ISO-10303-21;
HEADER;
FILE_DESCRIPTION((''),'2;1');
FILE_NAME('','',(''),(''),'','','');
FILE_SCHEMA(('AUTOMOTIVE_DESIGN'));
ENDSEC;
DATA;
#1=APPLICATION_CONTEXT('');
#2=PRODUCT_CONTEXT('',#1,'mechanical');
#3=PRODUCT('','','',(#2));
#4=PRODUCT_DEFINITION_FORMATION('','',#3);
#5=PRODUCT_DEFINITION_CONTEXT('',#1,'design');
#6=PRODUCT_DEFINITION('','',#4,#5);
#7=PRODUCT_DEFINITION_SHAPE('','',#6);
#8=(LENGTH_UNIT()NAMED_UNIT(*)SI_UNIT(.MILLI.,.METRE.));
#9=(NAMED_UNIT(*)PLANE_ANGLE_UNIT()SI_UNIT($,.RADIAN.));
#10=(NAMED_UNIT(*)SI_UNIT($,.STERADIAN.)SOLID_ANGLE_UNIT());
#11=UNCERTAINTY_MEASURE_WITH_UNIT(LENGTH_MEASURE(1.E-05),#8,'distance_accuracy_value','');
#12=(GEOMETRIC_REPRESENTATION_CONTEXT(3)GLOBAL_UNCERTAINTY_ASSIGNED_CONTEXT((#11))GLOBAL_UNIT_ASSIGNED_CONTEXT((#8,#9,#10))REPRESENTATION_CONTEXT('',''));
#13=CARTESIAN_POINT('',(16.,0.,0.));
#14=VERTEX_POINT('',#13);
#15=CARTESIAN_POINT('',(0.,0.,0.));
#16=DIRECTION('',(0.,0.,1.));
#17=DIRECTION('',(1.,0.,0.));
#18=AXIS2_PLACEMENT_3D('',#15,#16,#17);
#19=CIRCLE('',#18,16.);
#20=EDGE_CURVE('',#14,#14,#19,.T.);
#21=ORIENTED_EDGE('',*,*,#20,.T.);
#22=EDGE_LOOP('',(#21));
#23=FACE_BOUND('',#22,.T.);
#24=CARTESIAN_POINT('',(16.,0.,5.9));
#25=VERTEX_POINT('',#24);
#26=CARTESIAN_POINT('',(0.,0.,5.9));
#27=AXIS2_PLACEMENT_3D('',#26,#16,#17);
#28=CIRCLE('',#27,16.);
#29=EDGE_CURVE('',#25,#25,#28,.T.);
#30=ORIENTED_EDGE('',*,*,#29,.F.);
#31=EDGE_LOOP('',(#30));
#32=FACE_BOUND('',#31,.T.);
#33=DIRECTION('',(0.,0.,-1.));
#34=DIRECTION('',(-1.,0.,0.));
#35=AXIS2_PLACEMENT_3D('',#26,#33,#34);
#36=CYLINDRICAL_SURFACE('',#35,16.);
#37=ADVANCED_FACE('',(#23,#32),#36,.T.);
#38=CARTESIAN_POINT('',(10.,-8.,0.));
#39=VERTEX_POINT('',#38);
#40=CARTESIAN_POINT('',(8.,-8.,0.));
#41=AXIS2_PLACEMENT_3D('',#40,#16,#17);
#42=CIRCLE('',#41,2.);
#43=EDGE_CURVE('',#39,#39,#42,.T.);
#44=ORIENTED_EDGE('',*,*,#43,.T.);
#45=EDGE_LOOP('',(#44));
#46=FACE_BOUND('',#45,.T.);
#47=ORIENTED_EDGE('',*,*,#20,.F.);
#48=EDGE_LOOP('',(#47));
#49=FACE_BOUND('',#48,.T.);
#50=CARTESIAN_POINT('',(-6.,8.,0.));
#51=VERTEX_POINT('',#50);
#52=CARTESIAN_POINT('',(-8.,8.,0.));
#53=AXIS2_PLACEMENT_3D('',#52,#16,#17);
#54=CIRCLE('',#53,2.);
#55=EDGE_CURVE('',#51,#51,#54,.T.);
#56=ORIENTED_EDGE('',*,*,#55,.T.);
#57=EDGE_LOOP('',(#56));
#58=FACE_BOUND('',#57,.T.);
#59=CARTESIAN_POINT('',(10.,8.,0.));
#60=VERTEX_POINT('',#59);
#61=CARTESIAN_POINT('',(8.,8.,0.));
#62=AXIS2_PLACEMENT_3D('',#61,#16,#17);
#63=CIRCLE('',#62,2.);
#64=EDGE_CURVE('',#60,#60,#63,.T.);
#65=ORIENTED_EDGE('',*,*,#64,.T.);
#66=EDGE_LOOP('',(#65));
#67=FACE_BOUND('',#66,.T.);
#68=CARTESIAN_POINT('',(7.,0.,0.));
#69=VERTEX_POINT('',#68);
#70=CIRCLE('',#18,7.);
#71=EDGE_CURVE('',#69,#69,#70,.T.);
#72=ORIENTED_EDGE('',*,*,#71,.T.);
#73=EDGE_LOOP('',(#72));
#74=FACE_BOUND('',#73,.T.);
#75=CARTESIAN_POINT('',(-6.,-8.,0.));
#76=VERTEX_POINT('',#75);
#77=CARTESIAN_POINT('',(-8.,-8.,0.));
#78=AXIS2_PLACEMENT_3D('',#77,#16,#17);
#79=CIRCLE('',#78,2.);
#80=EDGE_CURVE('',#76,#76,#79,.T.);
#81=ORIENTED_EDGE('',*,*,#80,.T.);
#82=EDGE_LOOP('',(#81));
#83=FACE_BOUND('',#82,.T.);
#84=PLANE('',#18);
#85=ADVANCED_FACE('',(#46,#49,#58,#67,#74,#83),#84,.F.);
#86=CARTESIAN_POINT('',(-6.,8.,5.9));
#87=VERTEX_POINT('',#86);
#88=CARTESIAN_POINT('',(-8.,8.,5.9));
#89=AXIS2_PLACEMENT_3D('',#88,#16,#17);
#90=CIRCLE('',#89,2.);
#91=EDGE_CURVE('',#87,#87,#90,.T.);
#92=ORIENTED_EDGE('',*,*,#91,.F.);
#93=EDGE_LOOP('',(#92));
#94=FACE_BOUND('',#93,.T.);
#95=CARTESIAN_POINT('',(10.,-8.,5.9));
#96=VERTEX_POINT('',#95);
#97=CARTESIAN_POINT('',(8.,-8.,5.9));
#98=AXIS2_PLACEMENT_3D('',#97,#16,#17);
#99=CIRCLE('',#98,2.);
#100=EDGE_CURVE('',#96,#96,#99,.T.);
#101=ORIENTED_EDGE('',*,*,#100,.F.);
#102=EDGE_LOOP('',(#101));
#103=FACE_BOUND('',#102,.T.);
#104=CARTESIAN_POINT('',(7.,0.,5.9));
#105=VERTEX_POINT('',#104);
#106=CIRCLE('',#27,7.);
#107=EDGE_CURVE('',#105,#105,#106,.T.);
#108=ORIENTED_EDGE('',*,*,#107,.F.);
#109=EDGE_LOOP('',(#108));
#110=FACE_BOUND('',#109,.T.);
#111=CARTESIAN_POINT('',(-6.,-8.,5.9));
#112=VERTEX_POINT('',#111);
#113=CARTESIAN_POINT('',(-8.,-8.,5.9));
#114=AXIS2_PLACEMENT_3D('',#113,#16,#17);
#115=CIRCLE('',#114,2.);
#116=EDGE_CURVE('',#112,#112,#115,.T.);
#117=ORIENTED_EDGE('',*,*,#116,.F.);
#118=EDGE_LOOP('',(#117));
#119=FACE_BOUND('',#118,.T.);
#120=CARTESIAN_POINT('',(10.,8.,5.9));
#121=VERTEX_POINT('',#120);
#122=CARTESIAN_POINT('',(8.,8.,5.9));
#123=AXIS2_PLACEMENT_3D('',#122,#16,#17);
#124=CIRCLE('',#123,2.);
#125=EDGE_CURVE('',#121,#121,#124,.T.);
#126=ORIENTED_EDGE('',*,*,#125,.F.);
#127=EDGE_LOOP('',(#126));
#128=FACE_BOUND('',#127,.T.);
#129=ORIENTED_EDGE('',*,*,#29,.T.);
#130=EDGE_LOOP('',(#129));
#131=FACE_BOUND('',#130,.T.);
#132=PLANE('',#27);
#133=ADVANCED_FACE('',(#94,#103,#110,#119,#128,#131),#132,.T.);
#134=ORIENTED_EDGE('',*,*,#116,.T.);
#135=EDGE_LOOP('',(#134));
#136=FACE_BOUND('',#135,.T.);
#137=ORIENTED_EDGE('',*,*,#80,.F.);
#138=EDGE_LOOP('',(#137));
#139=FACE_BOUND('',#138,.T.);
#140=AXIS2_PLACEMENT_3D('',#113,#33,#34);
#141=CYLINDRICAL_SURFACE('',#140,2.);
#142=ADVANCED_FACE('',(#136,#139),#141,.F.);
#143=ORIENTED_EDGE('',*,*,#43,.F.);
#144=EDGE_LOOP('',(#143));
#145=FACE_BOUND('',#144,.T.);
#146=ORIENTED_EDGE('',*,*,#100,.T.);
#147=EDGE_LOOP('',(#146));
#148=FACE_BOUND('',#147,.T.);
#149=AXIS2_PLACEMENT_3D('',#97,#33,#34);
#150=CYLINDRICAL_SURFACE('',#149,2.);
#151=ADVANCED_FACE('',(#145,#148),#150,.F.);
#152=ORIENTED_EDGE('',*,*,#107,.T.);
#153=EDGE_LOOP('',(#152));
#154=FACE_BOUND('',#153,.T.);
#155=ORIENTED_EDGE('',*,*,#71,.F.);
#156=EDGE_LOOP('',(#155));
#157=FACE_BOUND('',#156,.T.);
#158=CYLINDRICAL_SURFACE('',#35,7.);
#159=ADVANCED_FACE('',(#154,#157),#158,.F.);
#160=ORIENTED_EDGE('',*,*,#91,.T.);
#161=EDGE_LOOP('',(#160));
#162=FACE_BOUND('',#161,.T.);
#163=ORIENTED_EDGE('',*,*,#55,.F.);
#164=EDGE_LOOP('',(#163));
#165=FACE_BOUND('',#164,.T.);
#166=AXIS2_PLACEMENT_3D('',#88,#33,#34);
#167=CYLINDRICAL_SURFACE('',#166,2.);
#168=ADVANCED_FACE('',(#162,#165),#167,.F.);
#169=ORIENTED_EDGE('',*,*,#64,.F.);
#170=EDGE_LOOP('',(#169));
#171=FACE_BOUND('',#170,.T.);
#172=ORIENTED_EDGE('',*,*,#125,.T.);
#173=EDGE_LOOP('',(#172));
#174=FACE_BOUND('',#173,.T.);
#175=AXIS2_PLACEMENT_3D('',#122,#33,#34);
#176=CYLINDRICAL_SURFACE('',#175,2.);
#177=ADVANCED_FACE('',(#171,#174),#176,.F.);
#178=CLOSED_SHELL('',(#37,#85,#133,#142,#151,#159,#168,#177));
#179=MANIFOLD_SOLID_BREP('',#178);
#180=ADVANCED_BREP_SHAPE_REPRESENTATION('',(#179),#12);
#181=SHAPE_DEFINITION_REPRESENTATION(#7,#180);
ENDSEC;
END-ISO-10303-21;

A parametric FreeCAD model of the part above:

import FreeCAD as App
import Part
import Sketcher

doc = App.newDocument("Part")
params = doc.addObject("Spreadsheet::Sheet", "Params")
for row, (alias, value) in enumerate([
    ("sketch1_diameter", "32 mm"),
    ("sketch1_diameter2", "4 mm"),
    ("sketch1_diameter3", "14 mm"),
    ("pad1_length", "5.9 mm"),
], start=1):
    params.set(f"A{row}", alias)
    params.set(f"B{row}", "=" + value)
    params.setAlias(f"B{row}", alias)

body = doc.addObject("PartDesign::Body", "Body")

sketch1 = body.newObject("Sketcher::SketchObject", "Sketch")
sketch1.AttachmentSupport = (doc.getObject("XY_Plane"), [""])
sketch1.MapMode = "FlatFace"
sketch1.addGeometry([
    Part.Circle(App.Vector(0, 0, 0), App.Vector(0, 0, 1), 16),
    Part.Circle(App.Vector(-8, -8, 0), App.Vector(0, 0, 1), 2),
    Part.Circle(App.Vector(8, -8, 0), App.Vector(0, 0, 1), 2),
    Part.Circle(App.Vector(-8, 8, 0), App.Vector(0, 0, 1), 2),
    Part.Circle(App.Vector(0, 0, 0), App.Vector(0, 0, 1), 7),
    Part.Circle(App.Vector(8, 8, 0), App.Vector(0, 0, 1), 2),
], False)
sketch1.addConstraint([
    Sketcher.Constraint("Coincident", 0, 3, -1, 1),
    Sketcher.Constraint("Coincident", 4, 3, -1, 1),
    Sketcher.Constraint("Equal", 1, 2),
    Sketcher.Constraint("Equal", 2, 3),
    Sketcher.Constraint("Equal", 3, 5),
    Sketcher.Constraint("Symmetric", 2, 3, 3, 3, -1, 1),
    Sketcher.Constraint("Symmetric", 1, 3, 5, 3, -1, 1),
    Sketcher.Constraint("Symmetric", 1, 3, 2, 3, -2),
    Sketcher.Constraint("Diameter", 0, 32.0),
    Sketcher.Constraint("Diameter", 1, 4.0),
    Sketcher.Constraint("Diameter", 4, 14.0),
    Sketcher.Constraint("DistanceX", 1, 3, -1, 1, 8.0),
    Sketcher.Constraint("DistanceY", 1, 3, -1, 1, 8.0),
])
sketch1.setExpression("Constraints[8]", "Params.sketch1_diameter")
sketch1.setExpression("Constraints[9]", "Params.sketch1_diameter2")
sketch1.setExpression("Constraints[10]", "Params.sketch1_diameter3")
pad1 = body.newObject("PartDesign::Pad", "Pad")
pad1.Profile = sketch1
pad1.setExpression("Length", "Params.pad1_length")

doc.recompute()
